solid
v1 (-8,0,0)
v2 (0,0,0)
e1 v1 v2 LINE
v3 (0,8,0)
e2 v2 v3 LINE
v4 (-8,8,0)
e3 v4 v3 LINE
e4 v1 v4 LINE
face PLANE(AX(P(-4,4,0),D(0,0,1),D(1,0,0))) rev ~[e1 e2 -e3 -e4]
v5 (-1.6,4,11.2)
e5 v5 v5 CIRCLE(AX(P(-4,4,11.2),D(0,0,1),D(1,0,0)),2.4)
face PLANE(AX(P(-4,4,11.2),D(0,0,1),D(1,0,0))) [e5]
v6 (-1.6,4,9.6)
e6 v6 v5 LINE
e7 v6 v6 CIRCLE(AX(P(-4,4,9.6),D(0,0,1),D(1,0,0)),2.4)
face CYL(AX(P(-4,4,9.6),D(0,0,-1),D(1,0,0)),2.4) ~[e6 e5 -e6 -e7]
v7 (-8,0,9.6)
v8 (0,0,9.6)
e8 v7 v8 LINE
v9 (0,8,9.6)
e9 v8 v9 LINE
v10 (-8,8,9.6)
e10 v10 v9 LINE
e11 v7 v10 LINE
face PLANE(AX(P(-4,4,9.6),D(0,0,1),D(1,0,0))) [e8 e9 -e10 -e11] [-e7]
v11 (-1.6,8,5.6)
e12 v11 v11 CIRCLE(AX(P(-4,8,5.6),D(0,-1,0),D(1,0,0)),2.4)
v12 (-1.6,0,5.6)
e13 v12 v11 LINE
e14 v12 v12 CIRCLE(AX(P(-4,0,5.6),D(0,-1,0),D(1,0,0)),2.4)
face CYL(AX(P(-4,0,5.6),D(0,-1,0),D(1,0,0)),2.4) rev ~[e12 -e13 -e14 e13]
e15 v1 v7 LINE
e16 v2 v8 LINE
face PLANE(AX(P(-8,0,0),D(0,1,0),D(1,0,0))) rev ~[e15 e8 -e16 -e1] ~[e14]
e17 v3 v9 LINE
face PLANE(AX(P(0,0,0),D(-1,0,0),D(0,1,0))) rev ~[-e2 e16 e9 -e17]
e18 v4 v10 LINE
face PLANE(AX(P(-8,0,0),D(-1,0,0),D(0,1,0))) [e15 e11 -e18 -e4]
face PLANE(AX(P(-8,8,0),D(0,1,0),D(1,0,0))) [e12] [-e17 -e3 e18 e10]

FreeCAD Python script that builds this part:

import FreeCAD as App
import Part
import Sketcher

V = App.Vector

doc = App.newDocument("Part")
body = doc.addObject("PartDesign::Body", "Body")

sketch1 = body.newObject("Sketcher::SketchObject", "Sketch")
sketch1.AttachmentSupport = (doc.getObject("XY_Plane"), [""])
sketch1.MapMode = "FlatFace"
sketch1.addGeometry(Part.LineSegment(V(-8, 8, 0), V(-8, 0, 0)), False)
sketch1.addGeometry(Part.LineSegment(V(-8, 0, 0), V(0, 0, 0)), False)
sketch1.addGeometry(Part.LineSegment(V(0, 0, 0), V(0, 8, 0)), False)
sketch1.addGeometry(Part.LineSegment(V(0, 8, 0), V(-8, 8, 0)), False)
sketch1.addConstraint(Sketcher.Constraint("Coincident", 0, 2, 1, 1))
sketch1.addConstraint(Sketcher.Constraint("Coincident", 1, 2, 2, 1))
sketch1.addConstraint(Sketcher.Constraint("Coincident", 2, 2, 3, 1))
sketch1.addConstraint(Sketcher.Constraint("Coincident", 3, 2, 0, 1))
sketch1.addConstraint(Sketcher.Constraint("Vertical", 0))
sketch1.addConstraint(Sketcher.Constraint("Horizontal", 1))
sketch1.addConstraint(Sketcher.Constraint("Vertical", 2))
sketch1.addConstraint(Sketcher.Constraint("Horizontal", 3))
sketch1.addConstraint(Sketcher.Constraint("Coincident", 1, 2, -1, 1))
sketch1.addConstraint(Sketcher.Constraint("Equal", 3, 0))
sketch1.addConstraint(Sketcher.Constraint("DistanceX", 1, 1, 1, 2, 8.0))
pad1 = body.newObject("PartDesign::Pad", "Pad")
pad1.Profile = sketch1
pad1.Length = 9.6

sketch2 = body.newObject("Sketcher::SketchObject", "Sketch001")
sketch2.AttachmentSupport = (doc.getObject("XZ_Plane"), [""])
sketch2.MapMode = "FlatFace"
sketch2.addGeometry(Part.Circle(V(-4, 5.6, 0), V(0, 0, 1), 2.4), False)
sketch2.addConstraint(Sketcher.Constraint("Diameter", 0, 4.8))
sketch2.addConstraint(Sketcher.Constraint("DistanceX", 0, 3, -1, 1, 4.0))
sketch2.addConstraint(Sketcher.Constraint("DistanceY", -1, 1, 0, 3, 5.6))
pocket1 = body.newObject("PartDesign::Pocket", "Pocket")
pocket1.Profile = sketch2
pocket1.Length = 25

sketch3 = body.newObject("Sketcher::SketchObject", "Sketch002")
sketch3.AttachmentSupport = (doc.getObject("XY_Plane"), [""])
sketch3.MapMode = "FlatFace"
sketch3.AttachmentOffset = App.Placement(V(0, 0, 9.6), App.Rotation())
sketch3.addGeometry(Part.Circle(V(-4, 4, 0), V(0, 0, 1), 2.4), False)
sketch3.addConstraint(Sketcher.Constraint("Diameter", 0, 4.8))
sketch3.addConstraint(Sketcher.Constraint("DistanceX", 0, 3, -1, 1, 4.0))
sketch3.addConstraint(Sketcher.Constraint("DistanceY", -1, 1, 0, 3, 4.0))
pad2 = body.newObject("PartDesign::Pad", "Pad001")
pad2.Profile = sketch3
pad2.Length = 1.6

doc.recompute()
